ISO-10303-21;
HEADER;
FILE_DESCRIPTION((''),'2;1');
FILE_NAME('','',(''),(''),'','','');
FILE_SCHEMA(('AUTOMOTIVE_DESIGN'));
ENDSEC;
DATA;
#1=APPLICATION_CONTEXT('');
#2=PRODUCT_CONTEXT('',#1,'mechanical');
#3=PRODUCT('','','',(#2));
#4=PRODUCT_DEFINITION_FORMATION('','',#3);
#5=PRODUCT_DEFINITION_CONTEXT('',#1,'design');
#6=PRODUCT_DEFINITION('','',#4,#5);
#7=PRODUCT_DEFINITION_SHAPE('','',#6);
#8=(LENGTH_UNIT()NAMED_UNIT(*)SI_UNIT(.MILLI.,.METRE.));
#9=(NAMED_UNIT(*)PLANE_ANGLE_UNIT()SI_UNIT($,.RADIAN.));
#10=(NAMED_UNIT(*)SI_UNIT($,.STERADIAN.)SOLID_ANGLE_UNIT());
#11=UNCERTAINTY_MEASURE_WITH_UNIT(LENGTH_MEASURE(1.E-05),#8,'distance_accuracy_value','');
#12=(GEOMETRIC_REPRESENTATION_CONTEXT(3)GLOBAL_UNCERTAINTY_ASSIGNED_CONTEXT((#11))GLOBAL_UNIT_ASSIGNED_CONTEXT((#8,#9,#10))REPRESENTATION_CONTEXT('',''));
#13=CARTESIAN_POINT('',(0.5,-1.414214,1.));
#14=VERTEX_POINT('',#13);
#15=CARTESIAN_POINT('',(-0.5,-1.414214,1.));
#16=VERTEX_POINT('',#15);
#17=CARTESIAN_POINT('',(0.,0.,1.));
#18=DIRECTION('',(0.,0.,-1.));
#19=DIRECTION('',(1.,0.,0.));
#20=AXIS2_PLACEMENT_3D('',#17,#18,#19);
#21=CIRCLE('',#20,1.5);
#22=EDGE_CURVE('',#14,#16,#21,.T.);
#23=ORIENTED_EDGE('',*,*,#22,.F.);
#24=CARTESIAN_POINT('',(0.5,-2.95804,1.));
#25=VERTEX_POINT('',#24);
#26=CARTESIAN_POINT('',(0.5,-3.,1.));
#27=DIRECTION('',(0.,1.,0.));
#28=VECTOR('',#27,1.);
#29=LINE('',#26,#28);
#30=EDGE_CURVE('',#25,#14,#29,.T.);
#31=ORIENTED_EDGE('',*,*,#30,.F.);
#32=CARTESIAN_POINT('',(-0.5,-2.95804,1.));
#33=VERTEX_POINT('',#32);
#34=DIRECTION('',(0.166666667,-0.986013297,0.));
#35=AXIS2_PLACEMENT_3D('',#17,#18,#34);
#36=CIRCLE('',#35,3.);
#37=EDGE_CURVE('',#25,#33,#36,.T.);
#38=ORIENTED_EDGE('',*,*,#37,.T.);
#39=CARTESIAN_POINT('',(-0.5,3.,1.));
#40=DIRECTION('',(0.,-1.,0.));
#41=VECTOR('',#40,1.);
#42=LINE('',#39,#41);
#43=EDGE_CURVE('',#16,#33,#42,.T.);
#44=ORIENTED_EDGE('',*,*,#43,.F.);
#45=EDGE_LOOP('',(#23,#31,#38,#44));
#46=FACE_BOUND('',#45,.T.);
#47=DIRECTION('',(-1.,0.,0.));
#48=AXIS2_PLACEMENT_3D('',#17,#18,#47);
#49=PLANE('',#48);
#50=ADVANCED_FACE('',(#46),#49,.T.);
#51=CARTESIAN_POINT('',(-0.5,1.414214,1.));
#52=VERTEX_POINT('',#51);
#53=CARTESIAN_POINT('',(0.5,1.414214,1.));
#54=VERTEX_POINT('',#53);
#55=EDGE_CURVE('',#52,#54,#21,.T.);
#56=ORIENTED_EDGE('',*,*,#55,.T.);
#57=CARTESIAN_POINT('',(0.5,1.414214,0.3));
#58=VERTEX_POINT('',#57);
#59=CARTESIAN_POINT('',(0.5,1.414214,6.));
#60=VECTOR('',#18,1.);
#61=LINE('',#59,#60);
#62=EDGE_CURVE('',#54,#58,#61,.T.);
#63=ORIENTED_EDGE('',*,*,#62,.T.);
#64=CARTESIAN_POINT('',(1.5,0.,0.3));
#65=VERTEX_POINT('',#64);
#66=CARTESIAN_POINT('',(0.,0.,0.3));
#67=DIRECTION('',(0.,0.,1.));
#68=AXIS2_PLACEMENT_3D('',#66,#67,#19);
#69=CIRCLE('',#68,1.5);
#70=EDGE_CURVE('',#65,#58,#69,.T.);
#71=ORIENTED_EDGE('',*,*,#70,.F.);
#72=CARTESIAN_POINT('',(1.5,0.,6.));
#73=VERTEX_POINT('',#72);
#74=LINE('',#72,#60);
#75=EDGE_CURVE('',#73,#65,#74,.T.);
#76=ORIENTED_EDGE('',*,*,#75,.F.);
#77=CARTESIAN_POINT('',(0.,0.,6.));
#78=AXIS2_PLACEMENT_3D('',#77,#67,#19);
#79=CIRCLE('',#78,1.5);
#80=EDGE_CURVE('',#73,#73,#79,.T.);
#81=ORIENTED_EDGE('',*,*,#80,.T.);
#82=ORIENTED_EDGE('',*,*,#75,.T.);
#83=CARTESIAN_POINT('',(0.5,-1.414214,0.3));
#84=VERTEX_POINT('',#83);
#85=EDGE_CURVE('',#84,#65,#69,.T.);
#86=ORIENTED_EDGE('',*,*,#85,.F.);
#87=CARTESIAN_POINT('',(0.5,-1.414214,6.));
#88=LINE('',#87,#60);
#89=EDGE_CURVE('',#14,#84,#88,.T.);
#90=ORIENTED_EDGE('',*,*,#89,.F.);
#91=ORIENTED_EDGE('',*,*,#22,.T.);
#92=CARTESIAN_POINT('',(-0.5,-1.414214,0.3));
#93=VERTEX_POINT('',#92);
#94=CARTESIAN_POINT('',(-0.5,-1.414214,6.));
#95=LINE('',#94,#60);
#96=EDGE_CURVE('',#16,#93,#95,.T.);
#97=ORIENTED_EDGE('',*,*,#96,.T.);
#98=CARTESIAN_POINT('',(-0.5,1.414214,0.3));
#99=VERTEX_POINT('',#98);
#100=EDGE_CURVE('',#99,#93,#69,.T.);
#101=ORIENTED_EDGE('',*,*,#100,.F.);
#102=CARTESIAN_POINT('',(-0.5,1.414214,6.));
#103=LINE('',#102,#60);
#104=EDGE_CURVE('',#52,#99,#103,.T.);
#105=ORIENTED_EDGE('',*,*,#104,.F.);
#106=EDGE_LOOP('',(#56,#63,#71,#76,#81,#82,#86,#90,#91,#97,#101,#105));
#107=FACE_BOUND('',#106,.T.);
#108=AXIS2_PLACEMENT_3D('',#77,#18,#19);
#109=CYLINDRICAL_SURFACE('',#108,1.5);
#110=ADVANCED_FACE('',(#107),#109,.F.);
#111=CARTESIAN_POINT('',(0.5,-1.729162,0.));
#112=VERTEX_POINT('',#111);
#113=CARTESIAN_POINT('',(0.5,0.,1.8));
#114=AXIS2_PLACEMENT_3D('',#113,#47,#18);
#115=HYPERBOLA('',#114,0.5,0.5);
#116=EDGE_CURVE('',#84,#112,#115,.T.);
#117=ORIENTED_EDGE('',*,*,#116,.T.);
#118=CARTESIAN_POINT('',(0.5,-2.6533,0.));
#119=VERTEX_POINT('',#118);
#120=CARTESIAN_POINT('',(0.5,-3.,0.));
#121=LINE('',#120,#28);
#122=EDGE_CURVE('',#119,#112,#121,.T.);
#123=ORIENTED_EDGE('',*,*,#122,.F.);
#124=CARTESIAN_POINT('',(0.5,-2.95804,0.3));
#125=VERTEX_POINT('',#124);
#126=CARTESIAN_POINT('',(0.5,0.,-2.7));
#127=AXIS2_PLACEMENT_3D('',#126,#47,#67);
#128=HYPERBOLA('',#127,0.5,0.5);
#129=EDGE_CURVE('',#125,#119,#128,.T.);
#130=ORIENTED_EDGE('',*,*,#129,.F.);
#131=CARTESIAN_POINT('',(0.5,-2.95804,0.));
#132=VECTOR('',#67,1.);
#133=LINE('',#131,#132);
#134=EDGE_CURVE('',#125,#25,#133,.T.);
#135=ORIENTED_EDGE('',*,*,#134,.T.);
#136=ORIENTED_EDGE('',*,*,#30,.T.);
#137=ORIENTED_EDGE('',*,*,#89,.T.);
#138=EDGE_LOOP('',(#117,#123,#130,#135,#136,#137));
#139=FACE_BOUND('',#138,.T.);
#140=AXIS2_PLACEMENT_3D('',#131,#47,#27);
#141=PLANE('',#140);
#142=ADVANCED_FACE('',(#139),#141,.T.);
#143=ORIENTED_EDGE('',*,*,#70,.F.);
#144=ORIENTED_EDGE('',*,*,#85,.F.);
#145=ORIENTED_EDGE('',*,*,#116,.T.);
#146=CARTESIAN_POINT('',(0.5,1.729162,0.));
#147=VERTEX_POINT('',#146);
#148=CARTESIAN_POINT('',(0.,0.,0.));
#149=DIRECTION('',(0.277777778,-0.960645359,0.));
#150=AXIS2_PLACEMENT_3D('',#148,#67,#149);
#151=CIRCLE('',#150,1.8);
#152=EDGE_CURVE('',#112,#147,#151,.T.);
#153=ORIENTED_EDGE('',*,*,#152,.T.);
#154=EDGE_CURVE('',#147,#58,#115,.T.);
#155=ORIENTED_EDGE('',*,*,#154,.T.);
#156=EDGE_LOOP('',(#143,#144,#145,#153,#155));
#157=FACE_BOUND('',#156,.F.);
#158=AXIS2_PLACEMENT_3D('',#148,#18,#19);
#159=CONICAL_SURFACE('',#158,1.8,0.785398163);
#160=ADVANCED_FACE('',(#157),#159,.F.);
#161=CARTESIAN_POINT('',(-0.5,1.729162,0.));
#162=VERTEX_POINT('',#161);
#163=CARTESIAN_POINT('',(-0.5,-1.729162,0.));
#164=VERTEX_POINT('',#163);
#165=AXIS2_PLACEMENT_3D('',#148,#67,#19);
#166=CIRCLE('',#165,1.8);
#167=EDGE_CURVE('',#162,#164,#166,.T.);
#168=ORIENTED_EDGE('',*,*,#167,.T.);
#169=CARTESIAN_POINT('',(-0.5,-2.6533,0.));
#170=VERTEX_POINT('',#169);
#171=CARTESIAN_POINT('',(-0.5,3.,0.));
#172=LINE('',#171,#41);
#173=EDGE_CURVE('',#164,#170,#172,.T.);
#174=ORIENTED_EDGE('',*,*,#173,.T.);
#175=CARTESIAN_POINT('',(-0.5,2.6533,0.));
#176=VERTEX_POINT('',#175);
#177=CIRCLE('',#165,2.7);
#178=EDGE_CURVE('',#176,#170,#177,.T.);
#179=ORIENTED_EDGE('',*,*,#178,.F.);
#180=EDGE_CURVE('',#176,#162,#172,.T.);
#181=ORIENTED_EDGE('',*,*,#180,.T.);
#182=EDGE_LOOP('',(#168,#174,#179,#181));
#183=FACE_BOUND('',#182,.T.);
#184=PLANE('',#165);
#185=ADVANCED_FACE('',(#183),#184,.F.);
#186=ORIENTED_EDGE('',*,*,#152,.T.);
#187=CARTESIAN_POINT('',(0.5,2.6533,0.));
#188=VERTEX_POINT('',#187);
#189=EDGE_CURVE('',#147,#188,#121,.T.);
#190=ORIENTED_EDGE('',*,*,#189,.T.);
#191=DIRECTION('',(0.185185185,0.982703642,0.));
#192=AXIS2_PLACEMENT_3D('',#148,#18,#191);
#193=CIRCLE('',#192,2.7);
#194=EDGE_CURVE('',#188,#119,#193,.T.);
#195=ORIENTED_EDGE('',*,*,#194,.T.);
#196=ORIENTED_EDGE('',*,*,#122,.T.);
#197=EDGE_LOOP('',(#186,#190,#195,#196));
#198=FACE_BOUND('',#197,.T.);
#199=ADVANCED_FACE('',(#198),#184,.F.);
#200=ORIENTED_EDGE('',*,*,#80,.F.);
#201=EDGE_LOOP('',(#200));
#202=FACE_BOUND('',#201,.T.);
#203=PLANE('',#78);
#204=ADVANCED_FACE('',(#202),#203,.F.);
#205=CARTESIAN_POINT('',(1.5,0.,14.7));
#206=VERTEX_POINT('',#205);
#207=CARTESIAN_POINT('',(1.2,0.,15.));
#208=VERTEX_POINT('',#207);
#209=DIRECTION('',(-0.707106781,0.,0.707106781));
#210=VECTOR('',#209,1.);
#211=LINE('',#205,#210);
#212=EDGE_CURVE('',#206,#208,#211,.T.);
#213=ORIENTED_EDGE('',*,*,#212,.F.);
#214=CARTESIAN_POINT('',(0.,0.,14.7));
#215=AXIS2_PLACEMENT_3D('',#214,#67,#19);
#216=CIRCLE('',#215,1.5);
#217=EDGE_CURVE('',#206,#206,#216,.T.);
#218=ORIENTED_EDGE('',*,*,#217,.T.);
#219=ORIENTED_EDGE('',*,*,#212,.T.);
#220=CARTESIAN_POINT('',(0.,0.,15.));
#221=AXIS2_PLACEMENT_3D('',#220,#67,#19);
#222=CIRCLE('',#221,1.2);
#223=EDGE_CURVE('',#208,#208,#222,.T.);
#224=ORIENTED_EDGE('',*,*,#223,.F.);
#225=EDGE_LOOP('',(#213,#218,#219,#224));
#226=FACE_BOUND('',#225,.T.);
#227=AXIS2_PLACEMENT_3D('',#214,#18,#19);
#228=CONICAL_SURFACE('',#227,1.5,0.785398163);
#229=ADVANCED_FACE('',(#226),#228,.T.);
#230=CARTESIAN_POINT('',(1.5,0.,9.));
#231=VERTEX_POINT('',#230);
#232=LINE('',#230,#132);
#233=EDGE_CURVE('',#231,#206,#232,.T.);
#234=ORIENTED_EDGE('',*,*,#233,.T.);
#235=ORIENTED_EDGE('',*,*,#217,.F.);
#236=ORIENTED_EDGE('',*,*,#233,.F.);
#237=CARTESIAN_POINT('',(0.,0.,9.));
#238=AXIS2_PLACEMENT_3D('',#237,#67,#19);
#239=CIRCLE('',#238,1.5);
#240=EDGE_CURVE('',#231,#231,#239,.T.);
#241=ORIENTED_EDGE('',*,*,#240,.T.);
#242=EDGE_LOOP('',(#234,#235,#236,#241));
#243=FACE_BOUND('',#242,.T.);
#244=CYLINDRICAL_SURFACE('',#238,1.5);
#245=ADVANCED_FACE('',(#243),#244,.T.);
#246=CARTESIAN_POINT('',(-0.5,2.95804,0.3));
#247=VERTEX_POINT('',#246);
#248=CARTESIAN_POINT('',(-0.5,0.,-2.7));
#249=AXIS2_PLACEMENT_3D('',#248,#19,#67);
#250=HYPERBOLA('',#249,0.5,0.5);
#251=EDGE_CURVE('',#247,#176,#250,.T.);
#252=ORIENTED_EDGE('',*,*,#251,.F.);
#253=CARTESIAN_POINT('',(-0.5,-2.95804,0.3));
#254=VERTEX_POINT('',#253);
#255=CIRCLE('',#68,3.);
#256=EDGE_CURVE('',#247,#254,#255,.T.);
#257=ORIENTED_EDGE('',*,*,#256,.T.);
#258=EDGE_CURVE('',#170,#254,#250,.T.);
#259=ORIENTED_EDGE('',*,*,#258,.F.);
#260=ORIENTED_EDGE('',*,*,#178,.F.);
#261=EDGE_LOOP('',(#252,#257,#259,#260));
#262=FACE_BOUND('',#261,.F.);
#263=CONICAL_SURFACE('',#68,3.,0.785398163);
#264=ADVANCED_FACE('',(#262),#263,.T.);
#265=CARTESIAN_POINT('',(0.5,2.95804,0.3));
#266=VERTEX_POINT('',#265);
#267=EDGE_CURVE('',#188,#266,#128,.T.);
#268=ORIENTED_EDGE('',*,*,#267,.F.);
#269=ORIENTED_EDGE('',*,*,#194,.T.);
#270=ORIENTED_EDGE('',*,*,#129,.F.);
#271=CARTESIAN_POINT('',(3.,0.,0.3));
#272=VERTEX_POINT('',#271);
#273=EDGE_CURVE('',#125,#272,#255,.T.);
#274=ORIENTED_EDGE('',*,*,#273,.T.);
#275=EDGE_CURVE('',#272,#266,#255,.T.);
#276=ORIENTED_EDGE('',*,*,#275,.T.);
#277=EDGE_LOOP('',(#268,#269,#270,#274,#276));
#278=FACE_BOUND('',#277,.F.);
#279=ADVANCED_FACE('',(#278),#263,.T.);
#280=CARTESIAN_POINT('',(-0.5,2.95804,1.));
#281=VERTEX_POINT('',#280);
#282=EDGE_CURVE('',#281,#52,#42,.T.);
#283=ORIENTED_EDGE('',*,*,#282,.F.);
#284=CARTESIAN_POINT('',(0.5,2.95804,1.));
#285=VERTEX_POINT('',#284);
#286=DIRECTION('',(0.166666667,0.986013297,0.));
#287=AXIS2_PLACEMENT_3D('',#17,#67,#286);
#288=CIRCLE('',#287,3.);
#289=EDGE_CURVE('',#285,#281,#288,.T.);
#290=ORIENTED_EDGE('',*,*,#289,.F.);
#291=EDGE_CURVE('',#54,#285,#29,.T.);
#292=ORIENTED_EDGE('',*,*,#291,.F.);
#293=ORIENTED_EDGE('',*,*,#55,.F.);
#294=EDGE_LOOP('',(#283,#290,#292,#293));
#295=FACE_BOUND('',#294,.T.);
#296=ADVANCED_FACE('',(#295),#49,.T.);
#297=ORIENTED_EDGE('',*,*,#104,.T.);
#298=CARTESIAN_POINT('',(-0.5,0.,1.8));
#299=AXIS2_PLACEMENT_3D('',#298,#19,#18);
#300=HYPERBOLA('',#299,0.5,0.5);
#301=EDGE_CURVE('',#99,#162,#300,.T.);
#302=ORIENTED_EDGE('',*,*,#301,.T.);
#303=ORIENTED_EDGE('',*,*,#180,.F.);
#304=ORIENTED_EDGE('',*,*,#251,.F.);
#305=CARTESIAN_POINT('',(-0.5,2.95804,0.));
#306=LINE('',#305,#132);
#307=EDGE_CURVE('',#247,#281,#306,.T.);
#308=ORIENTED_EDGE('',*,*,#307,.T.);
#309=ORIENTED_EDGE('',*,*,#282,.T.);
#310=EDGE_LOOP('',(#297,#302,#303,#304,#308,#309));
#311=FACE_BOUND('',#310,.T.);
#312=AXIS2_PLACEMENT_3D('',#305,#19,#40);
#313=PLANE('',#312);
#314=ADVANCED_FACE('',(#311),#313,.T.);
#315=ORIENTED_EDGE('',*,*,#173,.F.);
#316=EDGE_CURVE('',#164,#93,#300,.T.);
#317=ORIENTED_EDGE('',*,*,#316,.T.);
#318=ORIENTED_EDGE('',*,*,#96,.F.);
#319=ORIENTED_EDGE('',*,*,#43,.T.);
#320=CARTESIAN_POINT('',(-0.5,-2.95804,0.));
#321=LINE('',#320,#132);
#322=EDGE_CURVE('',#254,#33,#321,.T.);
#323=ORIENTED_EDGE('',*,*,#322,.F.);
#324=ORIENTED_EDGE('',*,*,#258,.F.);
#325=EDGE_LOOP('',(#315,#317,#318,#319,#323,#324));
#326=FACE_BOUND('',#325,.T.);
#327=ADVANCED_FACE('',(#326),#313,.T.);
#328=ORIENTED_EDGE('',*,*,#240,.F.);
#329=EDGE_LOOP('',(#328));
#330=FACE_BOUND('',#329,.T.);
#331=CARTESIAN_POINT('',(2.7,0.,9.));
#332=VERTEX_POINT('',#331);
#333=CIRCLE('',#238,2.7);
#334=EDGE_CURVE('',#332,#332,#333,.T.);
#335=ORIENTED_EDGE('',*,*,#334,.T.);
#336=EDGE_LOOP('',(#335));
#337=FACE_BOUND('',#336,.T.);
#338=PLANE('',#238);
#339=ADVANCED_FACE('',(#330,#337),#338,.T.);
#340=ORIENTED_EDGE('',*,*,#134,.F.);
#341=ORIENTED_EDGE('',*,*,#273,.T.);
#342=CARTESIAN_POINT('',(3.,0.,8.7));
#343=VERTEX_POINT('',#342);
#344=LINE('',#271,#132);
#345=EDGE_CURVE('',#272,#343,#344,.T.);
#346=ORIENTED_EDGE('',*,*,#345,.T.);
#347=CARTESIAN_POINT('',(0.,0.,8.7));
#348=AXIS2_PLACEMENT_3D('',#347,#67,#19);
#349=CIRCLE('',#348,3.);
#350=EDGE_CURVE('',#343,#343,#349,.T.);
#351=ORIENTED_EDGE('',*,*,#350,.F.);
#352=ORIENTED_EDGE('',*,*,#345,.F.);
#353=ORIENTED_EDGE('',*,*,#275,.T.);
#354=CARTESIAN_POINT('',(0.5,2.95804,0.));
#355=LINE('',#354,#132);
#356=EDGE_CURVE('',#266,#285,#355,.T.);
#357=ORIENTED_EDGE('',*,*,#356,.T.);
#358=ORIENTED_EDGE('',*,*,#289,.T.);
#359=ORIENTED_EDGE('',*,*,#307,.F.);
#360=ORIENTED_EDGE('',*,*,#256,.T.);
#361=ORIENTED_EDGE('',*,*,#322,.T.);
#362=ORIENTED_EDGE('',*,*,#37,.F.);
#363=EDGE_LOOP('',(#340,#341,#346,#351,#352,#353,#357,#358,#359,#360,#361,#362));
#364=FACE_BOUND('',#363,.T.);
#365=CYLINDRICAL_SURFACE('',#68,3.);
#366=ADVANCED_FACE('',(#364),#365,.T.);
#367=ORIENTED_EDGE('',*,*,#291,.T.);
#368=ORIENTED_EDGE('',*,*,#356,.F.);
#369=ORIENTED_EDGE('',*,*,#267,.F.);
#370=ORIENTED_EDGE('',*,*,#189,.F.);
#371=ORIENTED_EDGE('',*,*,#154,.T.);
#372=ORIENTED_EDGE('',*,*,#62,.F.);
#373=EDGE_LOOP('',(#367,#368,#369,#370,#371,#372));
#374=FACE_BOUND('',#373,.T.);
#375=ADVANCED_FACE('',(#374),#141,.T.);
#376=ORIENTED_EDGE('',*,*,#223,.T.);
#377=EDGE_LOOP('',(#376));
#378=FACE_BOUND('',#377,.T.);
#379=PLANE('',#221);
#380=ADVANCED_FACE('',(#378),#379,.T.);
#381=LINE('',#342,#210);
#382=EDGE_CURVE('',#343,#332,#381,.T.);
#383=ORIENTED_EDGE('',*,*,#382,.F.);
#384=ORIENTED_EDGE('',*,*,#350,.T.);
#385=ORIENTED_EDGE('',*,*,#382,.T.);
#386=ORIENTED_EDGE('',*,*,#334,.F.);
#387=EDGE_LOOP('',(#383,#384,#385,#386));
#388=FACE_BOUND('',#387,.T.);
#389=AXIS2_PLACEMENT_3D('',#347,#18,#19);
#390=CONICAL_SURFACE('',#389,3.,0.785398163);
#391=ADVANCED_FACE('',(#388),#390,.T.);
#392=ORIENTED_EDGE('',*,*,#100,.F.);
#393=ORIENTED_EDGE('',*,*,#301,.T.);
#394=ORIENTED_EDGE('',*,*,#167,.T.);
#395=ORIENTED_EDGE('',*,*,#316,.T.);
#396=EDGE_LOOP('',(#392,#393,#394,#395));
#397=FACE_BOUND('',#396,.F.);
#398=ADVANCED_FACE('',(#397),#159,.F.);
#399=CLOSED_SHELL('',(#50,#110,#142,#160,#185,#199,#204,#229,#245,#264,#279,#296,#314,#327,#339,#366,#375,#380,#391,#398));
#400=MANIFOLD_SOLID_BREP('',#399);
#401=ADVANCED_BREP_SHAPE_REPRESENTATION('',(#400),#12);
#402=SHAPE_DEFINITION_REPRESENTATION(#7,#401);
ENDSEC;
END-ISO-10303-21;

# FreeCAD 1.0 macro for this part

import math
import FreeCAD as App
import Part
import Sketcher

V = App.Vector

doc = App.newDocument("Part")
body = doc.addObject("PartDesign::Body", "Body")

# Sketch on XZ plane
sketch1 = body.newObject("Sketcher::SketchObject", "Sketch")
sketch1.AttachmentSupport = (doc.getObject("XZ_Plane"), [""])
sketch1.MapMode = "FlatFace"
sketch1.addGeometry(Part.LineSegment(V(2.7, 0, 0), V(1.8, 0, 0)), False)
sketch1.addGeometry(Part.LineSegment(V(1.8, 0, 0), V(1.5, 0.3, 0)), False)
sketch1.addGeometry(Part.LineSegment(V(1.5, 0.3, 0), V(1.5, 6, 0)), False)
sketch1.addGeometry(Part.LineSegment(V(1.5, 6, 0), V(0, 6, 0)), False)
sketch1.addGeometry(Part.LineSegment(V(0, 6, 0), V(0, 15, 0)), False)
sketch1.addGeometry(Part.LineSegment(V(0, 15, 0), V(1.2, 15, 0)), False)
sketch1.addGeometry(Part.LineSegment(V(1.2, 15, 0), V(1.5, 14.7, 0)), False)
sketch1.addGeometry(Part.LineSegment(V(1.5, 14.7, 0), V(1.5, 9, 0)), False)
sketch1.addGeometry(Part.LineSegment(V(1.5, 9, 0), V(2.7, 9, 0)), False)
sketch1.addGeometry(Part.LineSegment(V(2.7, 9, 0), V(3, 8.7, 0)), False)
sketch1.addGeometry(Part.LineSegment(V(3, 8.7, 0), V(3, 0.3, 0)), False)
sketch1.addGeometry(Part.LineSegment(V(3, 0.3, 0), V(2.7, 0, 0)), False)
sketch1.addConstraint(Sketcher.Constraint("Coincident", 0, 2, 1, 1))
sketch1.addConstraint(Sketcher.Constraint("Coincident", 1, 2, 2, 1))
sketch1.addConstraint(Sketcher.Constraint("Coincident", 2, 2, 3, 1))
sketch1.addConstraint(Sketcher.Constraint("Coincident", 3, 2, 4, 1))
sketch1.addConstraint(Sketcher.Constraint("Coincident", 4, 2, 5, 1))
sketch1.addConstraint(Sketcher.Constraint("Coincident", 5, 2, 6, 1))
sketch1.addConstraint(Sketcher.Constraint("Coincident", 6, 2, 7, 1))
sketch1.addConstraint(Sketcher.Constraint("Coincident", 7, 2, 8, 1))
sketch1.addConstraint(Sketcher.Constraint("Coincident", 8, 2, 9, 1))
sketch1.addConstraint(Sketcher.Constraint("Coincident", 9, 2, 10, 1))
sketch1.addConstraint(Sketcher.Constraint("Coincident", 10, 2, 11, 1))
sketch1.addConstraint(Sketcher.Constraint("Coincident", 11, 2, 0, 1))
sketch1.addConstraint(Sketcher.Constraint("Horizontal", 0))
sketch1.addConstraint(Sketcher.Constraint("Vertical", 2))
sketch1.addConstraint(Sketcher.Constraint("Horizontal", 3))
sketch1.addConstraint(Sketcher.Constraint("Vertical", 4))
sketch1.addConstraint(Sketcher.Constraint("Horizontal", 5))
sketch1.addConstraint(Sketcher.Constraint("Vertical", 7))
sketch1.addConstraint(Sketcher.Constraint("Horizontal", 8))
sketch1.addConstraint(Sketcher.Constraint("Vertical", 10))
sketch1.addConstraint(Sketcher.Constraint("PointOnObject", 0, 2, -1))
sketch1.addConstraint(Sketcher.Constraint("PointOnObject", 3, 2, -2))
sketch1.addConstraint(Sketcher.Constraint("Parallel", 1, 6))
sketch1.addConstraint(Sketcher.Constraint("Parallel", 6, 9))
sketch1.addConstraint(Sketcher.Constraint("Perpendicular", 9, 11))
sketch1.addConstraint(Sketcher.Constraint("Horizontal", 1, 2, 10, 2))
sketch1.addConstraint(Sketcher.Constraint("Vertical", 2, 2, 6, 2))
sketch1.addConstraint(Sketcher.Constraint("Vertical", 8, 2, 11, 2))
sketch1.addConstraint(Sketcher.Constraint("Equal", 5, 8))
sketch1.addConstraint(Sketcher.Constraint("Equal", 2, 7))
sketch1.addConstraint(Sketcher.Constraint("Equal", 1, 6))
sketch1.addConstraint(Sketcher.Constraint("Equal", 6, 9))
sketch1.addConstraint(Sketcher.Constraint("DistanceY", 4, 1, 4, 2, 9.0))
sketch1.addConstraint(Sketcher.Constraint("DistanceY", -1, 1, 2, 2, 6.0))
sketch1.addConstraint(Sketcher.Constraint("DistanceX", -1, 1, 9, 2, 3.0))
sketch1.addConstraint(Sketcher.Constraint("DistanceY", -1, 1, 1, 2, 0.3))
revolution = body.newObject("PartDesign::Revolution", "Revolution")
revolution.Profile = sketch1
revolution.ReferenceAxis = (sketch1, ["V_Axis"])
revolution.Angle = 360

# Sketch on XY plane
sketch2 = body.newObject("Sketcher::SketchObject", "Sketch001")
sketch2.AttachmentSupport = (doc.getObject("XY_Plane"), [""])
sketch2.MapMode = "FlatFace"
sketch2.addGeometry(Part.ArcOfCircle(Part.Circle(V(0, 0, 0), V(0, 0, 1), 3), math.radians(80.41), math.radians(99.59)), False)
sketch2.addGeometry(Part.LineSegment(V(0.5, 3, 0), V(0.5, -3, 0)), False)
sketch2.addGeometry(Part.ArcOfCircle(Part.Circle(V(0, 0, 0), V(0, 0, 1), 3), math.radians(-99.59), math.radians(-80.41)), False)
sketch2.addGeometry(Part.LineSegment(V(-0.5, -3, 0), V(-0.5, 3, 0)), False)
sketch2.addConstraint(Sketcher.Constraint("Coincident", 0, 1, 1, 1))
sketch2.addConstraint(Sketcher.Constraint("Coincident", 1, 2, 2, 2))
sketch2.addConstraint(Sketcher.Constraint("Coincident", 2, 1, 3, 1))
sketch2.addConstraint(Sketcher.Constraint("Coincident", 3, 2, 0, 2))
sketch2.addConstraint(Sketcher.Constraint("Vertical", 1))
sketch2.addConstraint(Sketcher.Constraint("Vertical", 3))
sketch2.addConstraint(Sketcher.Constraint("Coincident", 0, 3, -1, 1))
sketch2.addConstraint(Sketcher.Constraint("Coincident", 2, 3, -1, 1))
sketch2.addConstraint(Sketcher.Constraint("Equal", 0, 2))
sketch2.addConstraint(Sketcher.Constraint("Horizontal", 1, 2, 2, 1))
sketch2.addConstraint(Sketcher.Constraint("Radius", 0, 3.0))
sketch2.addConstraint(Sketcher.Constraint("DistanceX", 2, 1, 1, 2, 1.0))
pocket1 = body.newObject("PartDesign::Pocket", "Pocket")
pocket1.Profile = sketch2
pocket1.Length = 1
pocket1.Reversed = True

doc.recompute()
